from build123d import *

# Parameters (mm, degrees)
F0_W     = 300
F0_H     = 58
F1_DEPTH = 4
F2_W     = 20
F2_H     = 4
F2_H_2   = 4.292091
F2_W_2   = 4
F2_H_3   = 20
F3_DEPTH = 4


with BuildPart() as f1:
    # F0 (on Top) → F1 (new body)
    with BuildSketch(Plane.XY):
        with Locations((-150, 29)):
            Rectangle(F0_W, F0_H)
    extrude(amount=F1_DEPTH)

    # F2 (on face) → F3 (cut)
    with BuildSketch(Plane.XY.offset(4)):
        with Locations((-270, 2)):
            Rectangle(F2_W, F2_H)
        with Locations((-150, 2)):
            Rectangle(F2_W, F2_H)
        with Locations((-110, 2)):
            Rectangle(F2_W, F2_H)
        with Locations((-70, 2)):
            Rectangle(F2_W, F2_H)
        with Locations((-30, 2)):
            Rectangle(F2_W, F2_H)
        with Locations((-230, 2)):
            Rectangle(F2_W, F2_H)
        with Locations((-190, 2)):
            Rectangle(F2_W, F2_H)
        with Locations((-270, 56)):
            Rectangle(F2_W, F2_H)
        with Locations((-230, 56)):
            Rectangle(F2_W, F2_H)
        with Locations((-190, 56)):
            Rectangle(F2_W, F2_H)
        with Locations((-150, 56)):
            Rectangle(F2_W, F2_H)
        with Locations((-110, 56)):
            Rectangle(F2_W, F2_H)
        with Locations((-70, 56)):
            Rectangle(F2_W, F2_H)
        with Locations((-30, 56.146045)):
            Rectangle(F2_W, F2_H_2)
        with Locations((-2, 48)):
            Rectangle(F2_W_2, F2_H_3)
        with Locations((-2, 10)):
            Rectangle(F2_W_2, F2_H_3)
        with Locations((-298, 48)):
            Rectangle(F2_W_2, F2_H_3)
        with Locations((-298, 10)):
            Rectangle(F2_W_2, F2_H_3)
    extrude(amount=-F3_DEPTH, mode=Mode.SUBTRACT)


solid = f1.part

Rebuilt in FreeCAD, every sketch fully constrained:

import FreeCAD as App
import Part
import Sketcher

doc = App.newDocument("Part")
body = doc.addObject("PartDesign::Body", "Body")

sketch1 = body.newObject("Sketcher::SketchObject", "Sketch")
sketch1.AttachmentSupport = (doc.getObject("XY_Plane"), [""])
sketch1.MapMode = "FlatFace"
sketch1.addGeometry(Part.LineSegment(App.Vector(-300, 58, 0), App.Vector(-300, 0, 0)), False)
sketch1.addGeometry(Part.LineSegment(App.Vector(-300, 0, 0), App.Vector(0, 0, 0)), False)
sketch1.addGeometry(Part.LineSegment(App.Vector(0, 0, 0), App.Vector(0, 58, 0)), False)
sketch1.addGeometry(Part.LineSegment(App.Vector(0, 58, 0), App.Vector(-300, 58, 0)), False)
sketch1.addConstraint(Sketcher.Constraint("Coincident", 0, 2, 1, 1))
sketch1.addConstraint(Sketcher.Constraint("Coincident", 1, 2, 2, 1))
sketch1.addConstraint(Sketcher.Constraint("Coincident", 2, 2, 3, 1))
sketch1.addConstraint(Sketcher.Constraint("Coincident", 3, 2, 0, 1))
sketch1.addConstraint(Sketcher.Constraint("Vertical", 0))
sketch1.addConstraint(Sketcher.Constraint("Horizontal", 1))
sketch1.addConstraint(Sketcher.Constraint("Vertical", 2))
sketch1.addConstraint(Sketcher.Constraint("Horizontal", 3))
sketch1.addConstraint(Sketcher.Constraint("Coincident", 1, 2, -1, 1))
sketch1.addConstraint(Sketcher.Constraint("DistanceX", 1, 1, 1, 2, 300.0))
sketch1.addConstraint(Sketcher.Constraint("DistanceY", 0, 2, 0, 1, 58.0))
pad1 = body.newObject("PartDesign::Pad", "Pad")
pad1.Profile = sketch1
pad1.Length = 4

sketch2 = body.newObject("Sketcher::SketchObject", "Sketch001")
sketch2.AttachmentSupport = (doc.getObject("XY_Plane"), [""])
sketch2.MapMode = "FlatFace"
sketch2.AttachmentOffset = App.Placement(App.Vector(0, 0, 4), App.Rotation())
sketch2.addGeometry(Part.LineSegment(App.Vector(-280, 4, 0), App.Vector(-280, 0, 0)), False)
sketch2.addGeometry(Part.LineSegment(App.Vector(-280, 0, 0), App.Vector(-260, 0, 0)), False)
sketch2.addGeometry(Part.LineSegment(App.Vector(-260, 0, 0), App.Vector(-260, 4, 0)), False)
sketch2.addGeometry(Part.LineSegment(App.Vector(-260, 4, 0), App.Vector(-280, 4, 0)), False)
sketch2.addGeometry(Part.LineSegment(App.Vector(-160, 4, 0), App.Vector(-160, 0, 0)), False)
sketch2.addGeometry(Part.LineSegment(App.Vector(-160, 0, 0), App.Vector(-140, 0, 0)), False)
sketch2.addGeometry(Part.LineSegment(App.Vector(-140, 0, 0), App.Vector(-140, 4, 0)), False)
sketch2.addGeometry(Part.LineSegment(App.Vector(-140, 4, 0), App.Vector(-160, 4, 0)), False)
sketch2.addGeometry(Part.LineSegment(App.Vector(-120, 4, 0), App.Vector(-120, 0, 0)), False)
sketch2.addGeometry(Part.LineSegment(App.Vector(-120, 0, 0), App.Vector(-100, 0, 0)), False)
sketch2.addGeometry(Part.LineSegment(App.Vector(-100, 0, 0), App.Vector(-100, 4, 0)), False)
sketch2.addGeometry(Part.LineSegment(App.Vector(-100, 4, 0), App.Vector(-120, 4, 0)), False)
sketch2.addGeometry(Part.LineSegment(App.Vector(-80, 4, 0), App.Vector(-80, 0, 0)), False)
sketch2.addGeometry(Part.LineSegment(App.Vector(-80, 0, 0), App.Vector(-60, 0, 0)), False)
sketch2.addGeometry(Part.LineSegment(App.Vector(-60, 0, 0), App.Vector(-60, 4, 0)), False)
sketch2.addGeometry(Part.LineSegment(App.Vector(-60, 4, 0), App.Vector(-80, 4, 0)), False)
sketch2.addGeometry(Part.LineSegment(App.Vector(-40, 4, 0), App.Vector(-40, 0, 0)), False)
sketch2.addGeometry(Part.LineSegment(App.Vector(-40, 0, 0), App.Vector(-20, 0, 0)), False)
sketch2.addGeometry(Part.LineSegment(App.Vector(-20, 0, 0), App.Vector(-20, 4, 0)), False)
sketch2.addGeometry(Part.LineSegment(App.Vector(-20, 4, 0), App.Vector(-40, 4, 0)), False)
sketch2.addGeometry(Part.LineSegment(App.Vector(-240, 4, 0), App.Vector(-240, 0, 0)), False)
sketch2.addGeometry(Part.LineSegment(App.Vector(-240, 0, 0), App.Vector(-220, 0, 0)), False)
sketch2.addGeometry(Part.LineSegment(App.Vector(-220, 0, 0), App.Vector(-220, 4, 0)), False)
sketch2.addGeometry(Part.LineSegment(App.Vector(-220, 4, 0), App.Vector(-240, 4, 0)), False)
sketch2.addGeometry(Part.LineSegment(App.Vector(-200, 4, 0), App.Vector(-200, 0, 0)), False)
sketch2.addGeometry(Part.LineSegment(App.Vector(-200, 0, 0), App.Vector(-180, 0, 0)), False)
sketch2.addGeometry(Part.LineSegment(App.Vector(-180, 0, 0), App.Vector(-180, 4, 0)), False)
sketch2.addGeometry(Part.LineSegment(App.Vector(-180, 4, 0), App.Vector(-200, 4, 0)), False)
sketch2.addGeometry(Part.LineSegment(App.Vector(-280, 58, 0), App.Vector(-280, 54, 0)), False)
sketch2.addGeometry(Part.LineSegment(App.Vector(-280, 54, 0), App.Vector(-260, 54, 0)), False)
sketch2.addGeometry(Part.LineSegment(App.Vector(-260, 54, 0), App.Vector(-260, 58, 0)), False)
sketch2.addGeometry(Part.LineSegment(App.Vector(-260, 58, 0), App.Vector(-280, 58, 0)), False)
sketch2.addGeometry(Part.LineSegment(App.Vector(-240, 58, 0), App.Vector(-240, 54, 0)), False)
sketch2.addGeometry(Part.LineSegment(App.Vector(-240, 54, 0), App.Vector(-220, 54, 0)), False)
sketch2.addGeometry(Part.LineSegment(App.Vector(-220, 54, 0), App.Vector(-220, 58, 0)), False)
sketch2.addGeometry(Part.LineSegment(App.Vector(-220, 58, 0), App.Vector(-240, 58, 0)), False)
sketch2.addGeometry(Part.LineSegment(App.Vector(-200, 58, 0), App.Vector(-200, 54, 0)), False)
sketch2.addGeometry(Part.LineSegment(App.Vector(-200, 54, 0), App.Vector(-180, 54, 0)), False)
sketch2.addGeometry(Part.LineSegment(App.Vector(-180, 54, 0), App.Vector(-180, 58, 0)), False)
sketch2.addGeometry(Part.LineSegment(App.Vector(-180, 58, 0), App.Vector(-200, 58, 0)), False)
sketch2.addGeometry(Part.LineSegment(App.Vector(-160, 58, 0), App.Vector(-160, 54, 0)), False)
sketch2.addGeometry(Part.LineSegment(App.Vector(-160, 54, 0), App.Vector(-140, 54, 0)), False)
sketch2.addGeometry(Part.LineSegment(App.Vector(-140, 54, 0), App.Vector(-140, 58, 0)), False)
sketch2.addGeometry(Part.LineSegment(App.Vector(-140, 58, 0), App.Vector(-160, 58, 0)), False)
sketch2.addGeometry(Part.LineSegment(App.Vector(-120, 58, 0), App.Vector(-120, 54, 0)), False)
sketch2.addGeometry(Part.LineSegment(App.Vector(-120, 54, 0), App.Vector(-100, 54, 0)), False)
sketch2.addGeometry(Part.LineSegment(App.Vector(-100, 54, 0), App.Vector(-100, 58, 0)), False)
sketch2.addGeometry(Part.LineSegment(App.Vector(-100, 58, 0), App.Vector(-120, 58, 0)), False)
sketch2.addGeometry(Part.LineSegment(App.Vector(-80, 58, 0), App.Vector(-80, 54, 0)), False)
sketch2.addGeometry(Part.LineSegment(App.Vector(-80, 54, 0), App.Vector(-60, 54, 0)), False)
sketch2.addGeometry(Part.LineSegment(App.Vector(-60, 54, 0), App.Vector(-60, 58, 0)), False)
sketch2.addGeometry(Part.LineSegment(App.Vector(-60, 58, 0), App.Vector(-80, 58, 0)), False)
sketch2.addGeometry(Part.LineSegment(App.Vector(-40, 58.3, 0), App.Vector(-40, 54, 0)), False)
sketch2.addGeometry(Part.LineSegment(App.Vector(-40, 54, 0), App.Vector(-20, 54, 0)), False)
sketch2.addGeometry(Part.LineSegment(App.Vector(-20, 54, 0), App.Vector(-20, 58.3, 0)), False)
sketch2.addGeometry(Part.LineSegment(App.Vector(-20, 58.3, 0), App.Vector(-40, 58.3, 0)), False)
sketch2.addGeometry(Part.LineSegment(App.Vector(-4, 58, 0), App.Vector(-4, 38, 0)), False)
sketch2.addGeometry(Part.LineSegment(App.Vector(-4, 38, 0), App.Vector(0, 38, 0)), False)
sketch2.addGeometry(Part.LineSegment(App.Vector(0, 38, 0), App.Vector(0, 58, 0)), False)
sketch2.addGeometry(Part.LineSegment(App.Vector(0, 58, 0), App.Vector(-4, 58, 0)), False)
sketch2.addGeometry(Part.LineSegment(App.Vector(-4, 20, 0), App.Vector(-4, 0, 0)), False)
sketch2.addGeometry(Part.LineSegment(App.Vector(-4, 0, 0), App.Vector(0, 0, 0)), False)
sketch2.addGeometry(Part.LineSegment(App.Vector(0, 0, 0), App.Vector(0, 20, 0)), False)
sketch2.addGeometry(Part.LineSegment(App.Vector(0, 20, 0), App.Vector(-4, 20, 0)), False)
sketch2.addGeometry(Part.LineSegment(App.Vector(-300, 58, 0), App.Vector(-300, 38, 0)), False)
sketch2.addGeometry(Part.LineSegment(App.Vector(-300, 38, 0), App.Vector(-296, 38, 0)), False)
sketch2.addGeometry(Part.LineSegment(App.Vector(-296, 38, 0), App.Vector(-296, 58, 0)), False)
sketch2.addGeometry(Part.LineSegment(App.Vector(-296, 58, 0), App.Vector(-300, 58, 0)), False)
sketch2.addGeometry(Part.LineSegment(App.Vector(-300, 20, 0), App.Vector(-300, 0, 0)), False)
sketch2.addGeometry(Part.LineSegment(App.Vector(-300, 0, 0), App.Vector(-296, 0, 0)), False)
sketch2.addGeometry(Part.LineSegment(App.Vector(-296, 0, 0), App.Vector(-296, 20, 0)), False)
sketch2.addGeometry(Part.LineSegment(App.Vector(-296, 20, 0), App.Vector(-300, 20, 0)), False)
sketch2.addConstraint(Sketcher.Constraint("Coincident", 0, 2, 1, 1))
sketch2.addConstraint(Sketcher.Constraint("Coincident", 1, 2, 2, 1))
sketch2.addConstraint(Sketcher.Constraint("Coincident", 2, 2, 3, 1))
sketch2.addConstraint(Sketcher.Constraint("Coincident", 3, 2, 0, 1))
sketch2.addConstraint(Sketcher.Constraint("Coincident", 4, 2, 5, 1))
sketch2.addConstraint(Sketcher.Constraint("Coincident", 5, 2, 6, 1))
sketch2.addConstraint(Sketcher.Constraint("Coincident", 6, 2, 7, 1))
sketch2.addConstraint(Sketcher.Constraint("Coincident", 7, 2, 4, 1))
sketch2.addConstraint(Sketcher.Constraint("Coincident", 8, 2, 9, 1))
sketch2.addConstraint(Sketcher.Constraint("Coincident", 9, 2, 10, 1))
sketch2.addConstraint(Sketcher.Constraint("Coincident", 10, 2, 11, 1))
sketch2.addConstraint(Sketcher.Constraint("Coincident", 11, 2, 8, 1))
sketch2.addConstraint(Sketcher.Constraint("Coincident", 12, 2, 13, 1))
sketch2.addConstraint(Sketcher.Constraint("Coincident", 13, 2, 14, 1))
sketch2.addConstraint(Sketcher.Constraint("Coincident", 14, 2, 15, 1))
sketch2.addConstraint(Sketcher.Constraint("Coincident", 15, 2, 12, 1))
sketch2.addConstraint(Sketcher.Constraint("Coincident", 16, 2, 17, 1))
sketch2.addConstraint(Sketcher.Constraint("Coincident", 17, 2, 18, 1))
sketch2.addConstraint(Sketcher.Constraint("Coincident", 18, 2, 19, 1))
sketch2.addConstraint(Sketcher.Constraint("Coincident", 19, 2, 16, 1))
sketch2.addConstraint(Sketcher.Constraint("Coincident", 20, 2, 21, 1))
sketch2.addConstraint(Sketcher.Constraint("Coincident", 21, 2, 22, 1))
sketch2.addConstraint(Sketcher.Constraint("Coincident", 22, 2, 23, 1))
sketch2.addConstraint(Sketcher.Constraint("Coincident", 23, 2, 20, 1))
sketch2.addConstraint(Sketcher.Constraint("Coincident", 24, 2, 25, 1))
sketch2.addConstraint(Sketcher.Constraint("Coincident", 25, 2, 26, 1))
sketch2.addConstraint(Sketcher.Constraint("Coincident", 26, 2, 27, 1))
sketch2.addConstraint(Sketcher.Constraint("Coincident", 27, 2, 24, 1))
sketch2.addConstraint(Sketcher.Constraint("Coincident", 28, 2, 29, 1))
sketch2.addConstraint(Sketcher.Constraint("Coincident", 29, 2, 30, 1))
sketch2.addConstraint(Sketcher.Constraint("Coincident", 30, 2, 31, 1))
sketch2.addConstraint(Sketcher.Constraint("Coincident", 31, 2, 28, 1))
sketch2.addConstraint(Sketcher.Constraint("Coincident", 32, 2, 33, 1))
sketch2.addConstraint(Sketcher.Constraint("Coincident", 33, 2, 34, 1))
sketch2.addConstraint(Sketcher.Constraint("Coincident", 34, 2, 35, 1))
sketch2.addConstraint(Sketcher.Constraint("Coincident", 35, 2, 32, 1))
sketch2.addConstraint(Sketcher.Constraint("Coincident", 36, 2, 37, 1))
sketch2.addConstraint(Sketcher.Constraint("Coincident", 37, 2, 38, 1))
sketch2.addConstraint(Sketcher.Constraint("Coincident", 38, 2, 39, 1))
sketch2.addConstraint(Sketcher.Constraint("Coincident", 39, 2, 36, 1))
sketch2.addConstraint(Sketcher.Constraint("Coincident", 40, 2, 41, 1))
sketch2.addConstraint(Sketcher.Constraint("Coincident", 41, 2, 42, 1))
sketch2.addConstraint(Sketcher.Constraint("Coincident", 42, 2, 43, 1))
sketch2.addConstraint(Sketcher.Constraint("Coincident", 43, 2, 40, 1))
sketch2.addConstraint(Sketcher.Constraint("Coincident", 44, 2, 45, 1))
sketch2.addConstraint(Sketcher.Constraint("Coincident", 45, 2, 46, 1))
sketch2.addConstraint(Sketcher.Constraint("Coincident", 46, 2, 47, 1))
sketch2.addConstraint(Sketcher.Constraint("Coincident", 47, 2, 44, 1))
sketch2.addConstraint(Sketcher.Constraint("Coincident", 48, 2, 49, 1))
sketch2.addConstraint(Sketcher.Constraint("Coincident", 49, 2, 50, 1))
sketch2.addConstraint(Sketcher.Constraint("Coincident", 50, 2, 51, 1))
sketch2.addConstraint(Sketcher.Constraint("Coincident", 51, 2, 48, 1))
sketch2.addConstraint(Sketcher.Constraint("Coincident", 52, 2, 53, 1))
sketch2.addConstraint(Sketcher.Constraint("Coincident", 53, 2, 54, 1))
sketch2.addConstraint(Sketcher.Constraint("Coincident", 54, 2, 55, 1))
sketch2.addConstraint(Sketcher.Constraint("Coincident", 55, 2, 52, 1))
sketch2.addConstraint(Sketcher.Constraint("Coincident", 56, 2, 57, 1))
sketch2.addConstraint(Sketcher.Constraint("Coincident", 57, 2, 58, 1))
sketch2.addConstraint(Sketcher.Constraint("Coincident", 58, 2, 59, 1))
sketch2.addConstraint(Sketcher.Constraint("Coincident", 59, 2, 56, 1))
sketch2.addConstraint(Sketcher.Constraint("Coincident", 60, 2, 61, 1))
sketch2.addConstraint(Sketcher.Constraint("Coincident", 61, 2, 62, 1))
sketch2.addConstraint(Sketcher.Constraint("Coincident", 62, 2, 63, 1))
sketch2.addConstraint(Sketcher.Constraint("Coincident", 63, 2, 60, 1))
sketch2.addConstraint(Sketcher.Constraint("Coincident", 64, 2, 65, 1))
sketch2.addConstraint(Sketcher.Constraint("Coincident", 65, 2, 66, 1))
sketch2.addConstraint(Sketcher.Constraint("Coincident", 66, 2, 67, 1))
sketch2.addConstraint(Sketcher.Constraint("Coincident", 67, 2, 64, 1))
sketch2.addConstraint(Sketcher.Constraint("Coincident", 68, 2, 69, 1))
sketch2.addConstraint(Sketcher.Constraint("Coincident", 69, 2, 70, 1))
sketch2.addConstraint(Sketcher.Constraint("Coincident", 70, 2, 71, 1))
sketch2.addConstraint(Sketcher.Constraint("Coincident", 71, 2, 68, 1))
sketch2.addConstraint(Sketcher.Constraint("Vertical", 0))
sketch2.addConstraint(Sketcher.Constraint("Horizontal", 1))
sketch2.addConstraint(Sketcher.Constraint("Vertical", 2))
sketch2.addConstraint(Sketcher.Constraint("Horizontal", 3))
sketch2.addConstraint(Sketcher.Constraint("Vertical", 4))
sketch2.addConstraint(Sketcher.Constraint("Horizontal", 5))
sketch2.addConstraint(Sketcher.Constraint("Vertical", 6))
sketch2.addConstraint(Sketcher.Constraint("Horizontal", 7))
sketch2.addConstraint(Sketcher.Constraint("Vertical", 8))
sketch2.addConstraint(Sketcher.Constraint("Horizontal", 9))
sketch2.addConstraint(Sketcher.Constraint("Vertical", 10))
sketch2.addConstraint(Sketcher.Constraint("Horizontal", 11))
sketch2.addConstraint(Sketcher.Constraint("Vertical", 12))
sketch2.addConstraint(Sketcher.Constraint("Horizontal", 13))
sketch2.addConstraint(Sketcher.Constraint("Vertical", 14))
sketch2.addConstraint(Sketcher.Constraint("Horizontal", 15))
sketch2.addConstraint(Sketcher.Constraint("Vertical", 16))
sketch2.addConstraint(Sketcher.Constraint("Horizontal", 17))
sketch2.addConstraint(Sketcher.Constraint("Vertical", 18))
sketch2.addConstraint(Sketcher.Constraint("Horizontal", 19))
sketch2.addConstraint(Sketcher.Constraint("Vertical", 20))
sketch2.addConstraint(Sketcher.Constraint("Horizontal", 21))
sketch2.addConstraint(Sketcher.Constraint("Vertical", 22))
sketch2.addConstraint(Sketcher.Constraint("Horizontal", 23))
sketch2.addConstraint(Sketcher.Constraint("Vertical", 24))
sketch2.addConstraint(Sketcher.Constraint("Horizontal", 25))
sketch2.addConstraint(Sketcher.Constraint("Vertical", 26))
sketch2.addConstraint(Sketcher.Constraint("Horizontal", 27))
sketch2.addConstraint(Sketcher.Constraint("Vertical", 28))
sketch2.addConstraint(Sketcher.Constraint("Horizontal", 29))
sketch2.addConstraint(Sketcher.Constraint("Vertical", 30))
sketch2.addConstraint(Sketcher.Constraint("Horizontal", 31))
sketch2.addConstraint(Sketcher.Constraint("Vertical", 32))
sketch2.addConstraint(Sketcher.Constraint("Horizontal", 33))
sketch2.addConstraint(Sketcher.Constraint("Vertical", 34))
sketch2.addConstraint(Sketcher.Constraint("Horizontal", 35))
sketch2.addConstraint(Sketcher.Constraint("Vertical", 36))
sketch2.addConstraint(Sketcher.Constraint("Horizontal", 37))
sketch2.addConstraint(Sketcher.Constraint("Vertical", 38))
sketch2.addConstraint(Sketcher.Constraint("Horizontal", 39))
sketch2.addConstraint(Sketcher.Constraint("Vertical", 40))
sketch2.addConstraint(Sketcher.Constraint("Horizontal", 41))
sketch2.addConstraint(Sketcher.Constraint("Vertical", 42))
sketch2.addConstraint(Sketcher.Constraint("Horizontal", 43))
sketch2.addConstraint(Sketcher.Constraint("Vertical", 44))
sketch2.addConstraint(Sketcher.Constraint("Horizontal", 45))
sketch2.addConstraint(Sketcher.Constraint("Vertical", 46))
sketch2.addConstraint(Sketcher.Constraint("Horizontal", 47))
sketch2.addConstraint(Sketcher.Constraint("Vertical", 48))
sketch2.addConstraint(Sketcher.Constraint("Horizontal", 49))
sketch2.addConstraint(Sketcher.Constraint("Vertical", 50))
sketch2.addConstraint(Sketcher.Constraint("Horizontal", 51))
sketch2.addConstraint(Sketcher.Constraint("Vertical", 52))
sketch2.addConstraint(Sketcher.Constraint("Horizontal", 53))
sketch2.addConstraint(Sketcher.Constraint("Vertical", 54))
sketch2.addConstraint(Sketcher.Constraint("Horizontal", 55))
sketch2.addConstraint(Sketcher.Constraint("Vertical", 56))
sketch2.addConstraint(Sketcher.Constraint("Horizontal", 57))
sketch2.addConstraint(Sketcher.Constraint("Vertical", 58))
sketch2.addConstraint(Sketcher.Constraint("Horizontal", 59))
sketch2.addConstraint(Sketcher.Constraint("Vertical", 60))
sketch2.addConstraint(Sketcher.Constraint("Horizontal", 61))
sketch2.addConstraint(Sketcher.Constraint("Vertical", 62))
sketch2.addConstraint(Sketcher.Constraint("Horizontal", 63))
sketch2.addConstraint(Sketcher.Constraint("Vertical", 64))
sketch2.addConstraint(Sketcher.Constraint("Horizontal", 65))
sketch2.addConstraint(Sketcher.Constraint("Vertical", 66))
sketch2.addConstraint(Sketcher.Constraint("Horizontal", 67))
sketch2.addConstraint(Sketcher.Constraint("Vertical", 68))
sketch2.addConstraint(Sketcher.Constraint("Horizontal", 69))
sketch2.addConstraint(Sketcher.Constraint("Vertical", 70))
sketch2.addConstraint(Sketcher.Constraint("Horizontal", 71))
sketch2.addConstraint(Sketcher.Constraint("Coincident", 61, 2, -1, 1))
sketch2.addConstraint(Sketcher.Constraint("PointOnObject", 0, 2, -1))
sketch2.addConstraint(Sketcher.Constraint("PointOnObject", 4, 2, -1))
sketch2.addConstraint(Sketcher.Constraint("PointOnObject", 8, 2, -1))
sketch2.addConstraint(Sketcher.Constraint("PointOnObject", 12, 2, -1))
sketch2.addConstraint(Sketcher.Constraint("PointOnObject", 16, 2, -1))
sketch2.addConstraint(Sketcher.Constraint("PointOnObject", 20, 2, -1))
sketch2.addConstraint(Sketcher.Constraint("PointOnObject", 24, 2, -1))
sketch2.addConstraint(Sketcher.Constraint("PointOnObject", 57, 2, -2))
sketch2.addConstraint(Sketcher.Constraint("PointOnObject", 68, 2, -1))
sketch2.addConstraint(Sketcher.Constraint("Horizontal", 3, 2, 6, 2))
sketch2.addConstraint(Sketcher.Constraint("Horizontal", 7, 2, 10, 2))
sketch2.addConstraint(Sketcher.Constraint("Horizontal", 11, 2, 14, 2))
sketch2.addConstraint(Sketcher.Constraint("Horizontal", 15, 2, 18, 2))
sketch2.addConstraint(Sketcher.Constraint("Horizontal", 19, 2, 22, 2))
sketch2.addConstraint(Sketcher.Constraint("Horizontal", 23, 2, 26, 2))
sketch2.addConstraint(Sketcher.Constraint("Horizontal", 29, 2, 32, 2))
sketch2.addConstraint(Sketcher.Constraint("Horizontal", 31, 2, 34, 2))
sketch2.addConstraint(Sketcher.Constraint("Horizontal", 33, 2, 36, 2))
sketch2.addConstraint(Sketcher.Constraint("Horizontal", 35, 2, 38, 2))
sketch2.addConstraint(Sketcher.Constraint("Horizontal", 37, 2, 40, 2))
sketch2.addConstraint(Sketcher.Constraint("Horizontal", 39, 2, 42, 2))
sketch2.addConstraint(Sketcher.Constraint("Horizontal", 41, 2, 44, 2))
sketch2.addConstraint(Sketcher.Constraint("Horizontal", 43, 2, 46, 2))
sketch2.addConstraint(Sketcher.Constraint("Horizontal", 45, 2, 48, 2))
sketch2.addConstraint(Sketcher.Constraint("Horizontal", 47, 2, 50, 2))
sketch2.addConstraint(Sketcher.Constraint("Horizontal", 49, 2, 52, 2))
sketch2.addConstraint(Sketcher.Constraint("Horizontal", 51, 2, 58, 2))
sketch2.addConstraint(Sketcher.Constraint("Horizontal", 57, 2, 64, 2))
sketch2.addConstraint(Sketcher.Constraint("Horizontal", 59, 2, 66, 2))
sketch2.addConstraint(Sketcher.Constraint("Horizontal", 63, 2, 70, 2))
sketch2.addConstraint(Sketcher.Constraint("Vertical", 3, 2, 28, 2))
sketch2.addConstraint(Sketcher.Constraint("Vertical", 2, 2, 29, 2))
sketch2.addConstraint(Sketcher.Constraint("Vertical", 23, 2, 32, 2))
sketch2.addConstraint(Sketcher.Constraint("Vertical", 22, 2, 33, 2))
sketch2.addConstraint(Sketcher.Constraint("Vertical", 27, 2, 36, 2))
sketch2.addConstraint(Sketcher.Constraint("Vertical", 26, 2, 37, 2))
sketch2.addConstraint(Sketcher.Constraint("Vertical", 7, 2, 40, 2))
sketch2.addConstraint(Sketcher.Constraint("Vertical", 6, 2, 41, 2))
sketch2.addConstraint(Sketcher.Constraint("Vertical", 11, 2, 44, 2))
sketch2.addConstraint(Sketcher.Constraint("Vertical", 10, 2, 45, 2))
sketch2.addConstraint(Sketcher.Constraint("Vertical", 15, 2, 48, 2))
sketch2.addConstraint(Sketcher.Constraint("Vertical", 14, 2, 49, 2))
sketch2.addConstraint(Sketcher.Constraint("Vertical", 19, 2, 52, 2))
sketch2.addConstraint(Sketcher.Constraint("Vertical", 18, 2, 53, 2))
sketch2.addConstraint(Sketcher.Constraint("Vertical", 59, 2, 60, 2))
sketch2.addConstraint(Sketcher.Constraint("Vertical", 67, 2, 68, 2))
sketch2.addConstraint(Sketcher.Constraint("Vertical", 66, 2, 69, 2))
sketch2.addConstraint(Sketcher.Constraint("Equal", 3, 5))
sketch2.addConstraint(Sketcher.Constraint("Equal", 7, 9))
sketch2.addConstraint(Sketcher.Constraint("Equal", 11, 13))
sketch2.addConstraint(Sketcher.Constraint("Equal", 15, 17))
sketch2.addConstraint(Sketcher.Constraint("Equal", 19, 21))
sketch2.addConstraint(Sketcher.Constraint("Equal", 23, 25))
sketch2.addConstraint(Sketcher.Constraint("Equal", 63, 65))
sketch2.addConstraint(Sketcher.Constraint("Equal", 71, 0))
sketch2.addConstraint(Sketcher.Constraint("Equal", 26, 28))
sketch2.addConstraint(Sketcher.Constraint("Equal", 55, 56))
sketch2.addConstraint(Sketcher.Constraint("Equal", 58, 60))
sketch2.addConstraint(Sketcher.Constraint("DistanceX", 1, 1, 1, 2, 20.0))
sketch2.addConstraint(Sketcher.Constraint("DistanceX", 57, 1, 57, 2, 4.0))
sketch2.addConstraint(Sketcher.Constraint("DistanceX", 0, 2, -1, 1, 280.0))
sketch2.addConstraint(Sketcher.Constraint("DistanceX", 4, 2, -1, 1, 160.0))
sketch2.addConstraint(Sketcher.Constraint("DistanceX", 8, 2, -1, 1, 120.0))
sketch2.addConstraint(Sketcher.Constraint("DistanceX", 12, 2, -1, 1, 80.0))
sketch2.addConstraint(Sketcher.Constraint("DistanceX", 16, 2, -1, 1, 40.0))
sketch2.addConstraint(Sketcher.Constraint("DistanceX", 20, 2, -1, 1, 240.0))
sketch2.addConstraint(Sketcher.Constraint("DistanceX", 24, 2, -1, 1, 200.0))
sketch2.addConstraint(Sketcher.Constraint("DistanceY", -1, 1, 28, 2, 54.0))
sketch2.addConstraint(Sketcher.Constraint("DistanceX", 64, 2, -1, 1, 300.0))
sketch2.addConstraint(Sketcher.Constraint("DistanceY", 52, 2, 52, 1, 4.292091))
pocket1 = body.newObject("PartDesign::Pocket", "Pocket")
pocket1.Profile = sketch2
pocket1.Length = 4

doc.recompute()
